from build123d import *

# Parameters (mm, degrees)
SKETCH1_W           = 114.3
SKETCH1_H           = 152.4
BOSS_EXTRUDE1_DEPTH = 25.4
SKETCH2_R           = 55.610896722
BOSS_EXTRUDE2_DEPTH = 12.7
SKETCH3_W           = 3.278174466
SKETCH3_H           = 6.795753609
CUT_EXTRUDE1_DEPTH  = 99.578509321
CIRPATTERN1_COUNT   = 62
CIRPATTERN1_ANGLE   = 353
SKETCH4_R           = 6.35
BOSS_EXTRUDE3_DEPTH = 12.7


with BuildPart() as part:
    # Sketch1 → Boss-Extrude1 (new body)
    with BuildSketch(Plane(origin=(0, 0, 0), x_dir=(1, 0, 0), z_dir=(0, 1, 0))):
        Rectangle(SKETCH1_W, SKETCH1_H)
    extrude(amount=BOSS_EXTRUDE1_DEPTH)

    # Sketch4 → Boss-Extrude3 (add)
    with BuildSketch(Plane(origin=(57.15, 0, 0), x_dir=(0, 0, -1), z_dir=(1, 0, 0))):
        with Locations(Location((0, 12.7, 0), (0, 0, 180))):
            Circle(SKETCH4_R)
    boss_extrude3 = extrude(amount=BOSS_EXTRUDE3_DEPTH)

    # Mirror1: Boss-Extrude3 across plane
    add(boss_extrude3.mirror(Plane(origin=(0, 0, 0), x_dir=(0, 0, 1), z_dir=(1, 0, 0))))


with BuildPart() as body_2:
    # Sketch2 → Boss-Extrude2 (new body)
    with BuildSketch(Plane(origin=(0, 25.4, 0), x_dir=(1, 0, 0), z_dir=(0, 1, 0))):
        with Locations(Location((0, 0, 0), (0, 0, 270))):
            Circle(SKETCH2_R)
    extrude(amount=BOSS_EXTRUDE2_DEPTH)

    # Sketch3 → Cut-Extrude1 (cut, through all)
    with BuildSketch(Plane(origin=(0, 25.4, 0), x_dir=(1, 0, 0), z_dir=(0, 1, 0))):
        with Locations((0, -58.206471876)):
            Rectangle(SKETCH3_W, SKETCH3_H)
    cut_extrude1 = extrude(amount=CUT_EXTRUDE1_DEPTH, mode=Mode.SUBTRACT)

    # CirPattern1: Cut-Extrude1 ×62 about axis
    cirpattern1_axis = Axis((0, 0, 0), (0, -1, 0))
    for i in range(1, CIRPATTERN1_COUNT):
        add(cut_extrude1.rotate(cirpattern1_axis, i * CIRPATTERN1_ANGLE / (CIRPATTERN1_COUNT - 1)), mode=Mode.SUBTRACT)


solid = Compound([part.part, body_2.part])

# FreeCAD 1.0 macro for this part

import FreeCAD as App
import Part
import Sketcher

V = App.Vector
Q = App.Units.Quantity

doc = App.newDocument("Part")
body = doc.addObject("PartDesign::Body", "Body")

sketch1 = body.newObject("Sketcher::SketchObject", "Sketch")
sketch1.AttachmentSupport = (doc.getObject("XZ_Plane"), [""])
sketch1.MapMode = "FlatFace"
sketch1.addGeometry([
    Part.LineSegment(V(-57, -76, 0), V(-57, 76, 0)),
    Part.LineSegment(V(-57, 76, 0), V(57, 76, 0)),
    Part.LineSegment(V(57, 76, 0), V(57, -76, 0)),
    Part.LineSegment(V(57, -76, 0), V(-57, -76, 0)),
], False)
sketch1.addConstraint([
    Sketcher.Constraint("Coincident", 0, 2, 1, 1),
    Sketcher.Constraint("Coincident", 1, 2, 2, 1),
    Sketcher.Constraint("Coincident", 2, 2, 3, 1),
    Sketcher.Constraint("Coincident", 3, 2, 0, 1),
    Sketcher.Constraint("Vertical", 0),
    Sketcher.Constraint("Horizontal", 1),
    Sketcher.Constraint("Vertical", 2),
    Sketcher.Constraint("Horizontal", 3),
    Sketcher.Constraint("Symmetric", 0, 2, 2, 2, -1, 1),
    Sketcher.Constraint("DistanceY", 0, 1, 0, 2, Q("6 in")),
    Sketcher.Constraint("DistanceX", 1, 1, 1, 2, Q("4.5 in")),
])
pad1 = body.newObject("PartDesign::Pad", "Pad")
pad1.Profile = sketch1
pad1.Length = Q("1 in")
pad1.Reversed = True

sketch2 = body.newObject("Sketcher::SketchObject", "Sketch001")
sketch2.AttachmentSupport = (doc.getObject("YZ_Plane"), [""])
sketch2.MapMode = "FlatFace"
sketch2.AttachmentOffset = App.Placement(V(0, 0, 2.25 * 25.4), App.Rotation())
sketch2.addGeometry(Part.Circle(V(13, 0, 0), V(0, 0, 1), 6), False)
sketch2.addConstraint([
    Sketcher.Constraint("PointOnObject", 0, 3, -1),
    Sketcher.Constraint("Diameter", 0, Q("0.5 in")),
    Sketcher.Constraint("DistanceX", -1, 1, 0, 3, Q("0.5 in")),
])
pad2 = body.newObject("PartDesign::Pad", "Pad001")
pad2.Profile = sketch2
pad2.Length = Q("0.5 in")
doc.recompute()

mirrored = body.newObject("PartDesign::Mirrored", "Mirrored")
mirrored.Originals = [pad2]
mirrored.MirrorPlane = (doc.getObject("YZ_Plane"), [""])
body.Tip = mirrored
body2 = doc.addObject("PartDesign::Body", "Body001")

sketch3 = body2.newObject("Sketcher::SketchObject", "Sketch002")
sketch3.AttachmentSupport = (doc.getObject("XZ_Plane001"), [""])
sketch3.MapMode = "FlatFace"
sketch3.AttachmentOffset = App.Placement(V(0, 0, -1 * 25.4), App.Rotation())
sketch3.addGeometry(Part.Circle(V(0, 0, 0), V(0, 0, 1), 56), False)
sketch3.addConstraint([
    Sketcher.Constraint("Coincident", 0, 3, -1, 1),
    Sketcher.Constraint("Diameter", 0, Q("111.221793 mm")),
])
pad3 = body2.newObject("PartDesign::Pad", "Pad002")
pad3.Profile = sketch3
pad3.Length = Q("0.5 in")
pad3.Reversed = True

sketch4 = body2.newObject("Sketcher::SketchObject", "Sketch003")
sketch4.AttachmentSupport = (doc.getObject("XZ_Plane001"), [""])
sketch4.MapMode = "FlatFace"
sketch4.AttachmentOffset = App.Placement(V(0, 0, -1 * 25.4), App.Rotation())
sketch4.addGeometry([
    Part.LineSegment(V(-1.6, 54.8, 0), V(-1.6, 61.6, 0)),
    Part.LineSegment(V(-1.6, 61.6, 0), V(1.6, 61.6, 0)),
    Part.LineSegment(V(1.6, 61.6, 0), V(1.6, 54.8, 0)),
    Part.LineSegment(V(1.6, 54.8, 0), V(-1.6, 54.8, 0)),
], False)
sketch4.addConstraint([
    Sketcher.Constraint("Coincident", 0, 2, 1, 1),
    Sketcher.Constraint("Coincident", 1, 2, 2, 1),
    Sketcher.Constraint("Coincident", 2, 2, 3, 1),
    Sketcher.Constraint("Coincident", 3, 2, 0, 1),
    Sketcher.Constraint("Vertical", 0),
    Sketcher.Constraint("Horizontal", 1),
    Sketcher.Constraint("Vertical", 2),
    Sketcher.Constraint("Horizontal", 3),
    Sketcher.Constraint("DistanceX", 1, 1, 1, 2, Q("3.278174 mm")),
    Sketcher.Constraint("DistanceY", 0, 1, 0, 2, Q("6.795754 mm")),
    Sketcher.Constraint("DistanceY", -1, 1, 0, 2, Q("61.604349 mm")),
    Sketcher.Constraint("DistanceX", 0, 2, -1, 1, Q("1.639087 mm")),
])
pocket1 = body2.newObject("PartDesign::Pocket", "Pocket")
pocket1.Profile = sketch4
pocket1.Type = "ThroughAll"
doc.recompute()

polarpattern = body2.newObject("PartDesign::PolarPattern", "PolarPattern")
polarpattern.Originals = [pocket1]
polarpattern.Axis = (doc.getObject("Y_Axis001"), [""])
polarpattern.Angle = 353
polarpattern.Occurrences = 62
polarpattern.Reversed = True
body2.Tip = polarpattern

doc.recompute()
